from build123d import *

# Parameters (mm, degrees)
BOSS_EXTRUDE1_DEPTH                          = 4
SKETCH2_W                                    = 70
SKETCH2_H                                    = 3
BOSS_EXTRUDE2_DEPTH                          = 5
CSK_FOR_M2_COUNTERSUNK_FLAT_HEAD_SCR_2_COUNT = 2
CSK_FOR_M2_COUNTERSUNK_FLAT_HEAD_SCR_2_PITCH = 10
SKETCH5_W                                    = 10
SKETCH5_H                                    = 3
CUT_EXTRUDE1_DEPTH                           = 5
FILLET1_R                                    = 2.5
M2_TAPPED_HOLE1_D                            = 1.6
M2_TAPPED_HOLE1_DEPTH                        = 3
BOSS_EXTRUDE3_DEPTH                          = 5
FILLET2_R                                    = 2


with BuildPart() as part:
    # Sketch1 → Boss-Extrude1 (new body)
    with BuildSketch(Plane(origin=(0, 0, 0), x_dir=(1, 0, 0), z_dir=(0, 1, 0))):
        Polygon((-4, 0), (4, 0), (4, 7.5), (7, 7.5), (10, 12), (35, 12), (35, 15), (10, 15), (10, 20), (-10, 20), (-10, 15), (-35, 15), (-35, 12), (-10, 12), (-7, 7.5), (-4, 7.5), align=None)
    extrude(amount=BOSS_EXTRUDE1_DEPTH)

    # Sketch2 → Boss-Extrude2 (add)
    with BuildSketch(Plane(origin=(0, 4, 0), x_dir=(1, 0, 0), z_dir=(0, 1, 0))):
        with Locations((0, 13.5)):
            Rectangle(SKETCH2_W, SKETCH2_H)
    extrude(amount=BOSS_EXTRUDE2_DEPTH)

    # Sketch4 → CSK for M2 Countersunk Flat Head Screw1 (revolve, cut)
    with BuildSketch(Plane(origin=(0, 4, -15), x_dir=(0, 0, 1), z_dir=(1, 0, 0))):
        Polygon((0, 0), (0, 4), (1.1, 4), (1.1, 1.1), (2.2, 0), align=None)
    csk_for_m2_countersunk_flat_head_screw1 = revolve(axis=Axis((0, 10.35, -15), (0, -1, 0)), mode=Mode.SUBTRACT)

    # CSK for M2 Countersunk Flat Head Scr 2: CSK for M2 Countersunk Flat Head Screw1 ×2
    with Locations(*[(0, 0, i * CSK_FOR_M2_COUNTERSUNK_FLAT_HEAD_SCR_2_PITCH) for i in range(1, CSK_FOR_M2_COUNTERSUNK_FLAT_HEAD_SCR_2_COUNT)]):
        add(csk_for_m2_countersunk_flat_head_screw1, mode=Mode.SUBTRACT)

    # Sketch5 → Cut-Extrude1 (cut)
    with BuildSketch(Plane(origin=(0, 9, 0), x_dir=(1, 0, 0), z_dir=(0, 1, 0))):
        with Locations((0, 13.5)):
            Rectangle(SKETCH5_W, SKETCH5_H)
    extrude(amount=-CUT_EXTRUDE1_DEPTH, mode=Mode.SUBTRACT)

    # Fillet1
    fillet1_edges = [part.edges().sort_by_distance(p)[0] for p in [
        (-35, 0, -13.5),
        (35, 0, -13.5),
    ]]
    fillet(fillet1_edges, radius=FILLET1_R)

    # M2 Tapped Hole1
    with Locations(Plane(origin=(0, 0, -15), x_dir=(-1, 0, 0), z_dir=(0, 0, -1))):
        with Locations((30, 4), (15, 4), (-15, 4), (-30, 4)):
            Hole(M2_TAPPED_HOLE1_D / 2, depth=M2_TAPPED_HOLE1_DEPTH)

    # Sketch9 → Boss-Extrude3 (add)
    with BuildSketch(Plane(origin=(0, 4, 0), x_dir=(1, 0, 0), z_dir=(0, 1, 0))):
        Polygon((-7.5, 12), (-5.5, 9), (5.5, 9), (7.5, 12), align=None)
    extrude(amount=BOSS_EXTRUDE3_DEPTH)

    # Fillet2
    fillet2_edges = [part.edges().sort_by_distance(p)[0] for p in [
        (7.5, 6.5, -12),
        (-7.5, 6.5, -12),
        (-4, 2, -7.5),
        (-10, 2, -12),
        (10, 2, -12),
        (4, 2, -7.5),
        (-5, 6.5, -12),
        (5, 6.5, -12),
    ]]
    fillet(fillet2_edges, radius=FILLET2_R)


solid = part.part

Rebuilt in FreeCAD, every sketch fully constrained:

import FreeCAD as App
import Part
import Sketcher
Q = App.Units.Quantity


def edges_at(feature, points):
    """Names of the edges that pass closest to the given points."""
    edges = feature.Shape.Edges
    near = lambda p: min(range(len(edges)), key=lambda i: edges[i].distToShape(Part.Vertex(*p))[0])
    return sorted({f"Edge{near(p) + 1}" for p in points})


def add_polygon(sketch, points):
    """Adds a closed chain of lines whose ends are joined by coincident constraints."""
    first, n = sketch.GeometryCount, len(points)
    for a, b in zip(points, points[1:] + points[:1]):
        sketch.addGeometry(Part.LineSegment(App.Vector(*a, 0), App.Vector(*b, 0)), False)
    for i in range(n):
        sketch.addConstraint(Sketcher.Constraint("Coincident", first + i, 2, first + (i + 1) % n, 1))

doc = App.newDocument("Part")
params = doc.addObject("Spreadsheet::Sheet", "Params")
for row, (alias, value) in enumerate([
    ("sketch1_width", "8 mm"),
    ("sketch1_width2", "3 mm"),
    ("sketch1_width3", "25 mm"),
    ("sketch1_width4", "20 mm"),
    ("sketch1_height", "5 mm"),
    ("pad1_length", "4 mm"),
    ("sketch2_width", "70 mm"),
    ("sketch2_height", "3 mm"),
    ("pad2_length", "5 mm"),
    ("sketch3_width", "4 mm"),
    ("sketch3_width2", "2.9 mm"),
    ("sketch3_height", "2.2 mm"),
    ("groove_angle", "360 deg"),
    ("linearpattern_pitch", "10 mm"),
    ("sketch4_width", "10 mm"),
    ("sketch4_height", "3 mm"),
    ("pocket1_length", "5 mm"),
    ("fillet_radius", "2.5 mm"),
    ("sketch5_diameter", "1.6 mm"),
    ("hole_diameter", "1.6 mm"),
    ("hole_depth", "3 mm"),
    ("sketch6_width", "11 mm"),
    ("sketch6_width2", "15 mm"),
    ("pad3_length", "5 mm"),
    ("fillet2_radius", "2 mm"),
], start=1):
    params.set(f"A{row}", alias)
    params.set(f"B{row}", "=" + value)
    params.setAlias(f"B{row}", alias)

body = doc.addObject("PartDesign::Body", "Body")

# Sketch on XZ plane
sketch1 = body.newObject("Sketcher::SketchObject", "Sketch")
sketch1.AttachmentSupport = (doc.getObject("XZ_Plane"), [""])
sketch1.MapMode = "FlatFace"
add_polygon(sketch1, [(-4, 0), (4, 0), (4, -7.5), (7, -7.5), (10, -12), (35, -12), (35, -15), (10, -15), (10, -20), (-10, -20), (-10, -15), (-35, -15), (-35, -12), (-10, -12), (-7, -7.5), (-4, -7.5)])  # lines 0-15
sketch1.addConstraint(Sketcher.Constraint("Horizontal", 0))
sketch1.addConstraint(Sketcher.Constraint("Vertical", 1))
sketch1.addConstraint(Sketcher.Constraint("Horizontal", 2))
sketch1.addConstraint(Sketcher.Constraint("Horizontal", 4))
sketch1.addConstraint(Sketcher.Constraint("Vertical", 5))
sketch1.addConstraint(Sketcher.Constraint("Horizontal", 6))
sketch1.addConstraint(Sketcher.Constraint("Vertical", 7))
sketch1.addConstraint(Sketcher.Constraint("Horizontal", 8))
sketch1.addConstraint(Sketcher.Constraint("Vertical", 9))
sketch1.addConstraint(Sketcher.Constraint("Horizontal", 10))
sketch1.addConstraint(Sketcher.Constraint("Vertical", 11))
sketch1.addConstraint(Sketcher.Constraint("Horizontal", 12))
sketch1.addConstraint(Sketcher.Constraint("Horizontal", 14))
sketch1.addConstraint(Sketcher.Constraint("Vertical", 15))
sketch1.addConstraint(Sketcher.Constraint("Symmetric", 0, 2, 15, 2, -1, 1))
sketch1.addConstraint(Sketcher.Constraint("Symmetric", 6, 2, 9, 2, -2))
sketch1.addConstraint(Sketcher.Constraint("Symmetric", 4, 2, 11, 2, -2))
sketch1.addConstraint(Sketcher.Constraint("Symmetric", 2, 2, 13, 2, -2))
sketch1.addConstraint(Sketcher.Constraint("Vertical", 3, 2, 6, 2))
sketch1.addConstraint(Sketcher.Constraint("Vertical", 9, 2, 12, 2))
sketch1.addConstraint(Sketcher.Constraint("Equal", 14, 5))
sketch1.addConstraint(Sketcher.Constraint("DistanceX", 0, 1, 0, 2, 8.0))
sketch1.addConstraint(Sketcher.Constraint("DistanceX", 2, 1, 2, 2, 3.0))
sketch1.addConstraint(Sketcher.Constraint("DistanceX", 4, 1, 4, 2, 25.0))
sketch1.addConstraint(Sketcher.Constraint("DistanceX", 8, 2, 8, 1, 20.0))
sketch1.addConstraint(Sketcher.Constraint("DistanceY", 7, 2, 7, 1, 5.0))
sketch1.addConstraint(Sketcher.Constraint("DistanceY", 1, 2, 1, 1, 7.5))
sketch1.addConstraint(Sketcher.Constraint("DistanceY", 3, 2, -1, 1, 12.0))
sketch1.setExpression("Constraints[37]", "Params.sketch1_width")
sketch1.setExpression("Constraints[38]", "Params.sketch1_width2")
sketch1.setExpression("Constraints[39]", "Params.sketch1_width3")
sketch1.setExpression("Constraints[40]", "Params.sketch1_width4")
sketch1.setExpression("Constraints[41]", "Params.sketch1_height")
pad1 = body.newObject("PartDesign::Pad", "Pad")
pad1.Profile = sketch1
pad1.setExpression("Length", "Params.pad1_length")
pad1.Reversed = True

# Sketch on XZ plane
sketch2 = body.newObject("Sketcher::SketchObject", "Sketch001")
sketch2.AttachmentSupport = (doc.getObject("XZ_Plane"), [""])
sketch2.MapMode = "FlatFace"
sketch2.AttachmentOffset = App.Placement(App.Vector(0, 0, -4), App.Rotation())
add_polygon(sketch2, [(-35, -15), (-35, -12), (35, -12), (35, -15)])  # lines 0-3
sketch2.addConstraint(Sketcher.Constraint("Vertical", 0))
sketch2.addConstraint(Sketcher.Constraint("Horizontal", 1))
sketch2.addConstraint(Sketcher.Constraint("Vertical", 2))
sketch2.addConstraint(Sketcher.Constraint("Horizontal", 3))
sketch2.addConstraint(Sketcher.Constraint("DistanceX", 1, 1, 1, 2, 70.0))
sketch2.addConstraint(Sketcher.Constraint("DistanceY", 0, 1, 0, 2, 3.0))
sketch2.addConstraint(Sketcher.Constraint("DistanceX", 0, 2, -1, 1, 35.0))
sketch2.addConstraint(Sketcher.Constraint("DistanceY", 0, 2, -1, 1, 12.0))
sketch2.setExpression("Constraints[8]", "Params.sketch2_width")
sketch2.setExpression("Constraints[9]", "Params.sketch2_height")
pad2 = body.newObject("PartDesign::Pad", "Pad001")
pad2.Profile = sketch2
pad2.setExpression("Length", "Params.pad2_length")
pad2.Reversed = True

# Sketch on YZ plane
sketch3 = body.newObject("Sketcher::SketchObject", "Sketch002")
sketch3.AttachmentSupport = (doc.getObject("YZ_Plane"), [""])
sketch3.MapMode = "FlatFace"
add_polygon(sketch3, [(0, -15), (4, -15), (4, -12.8), (2.9, -13.9), (0, -13.9)])  # lines 0-4
sketch3.addGeometry(Part.LineSegment(App.Vector(4, -15, 0), App.Vector(0, -15, 0)), True)  # axis
sketch3.addConstraint(Sketcher.Constraint("Horizontal", 0))
sketch3.addConstraint(Sketcher.Constraint("Vertical", 1))
sketch3.addConstraint(Sketcher.Constraint("Horizontal", 3))
sketch3.addConstraint(Sketcher.Constraint("Vertical", 4))
sketch3.addConstraint(Sketcher.Constraint("Horizontal", 5))
sketch3.addConstraint(Sketcher.Constraint("Coincident", 5, 1, 0, 2))
sketch3.addConstraint(Sketcher.Constraint("PointOnObject", 3, 2, -2))
sketch3.addConstraint(Sketcher.Constraint("PointOnObject", 5, 2, -2))
sketch3.addConstraint(Sketcher.Constraint("DistanceX", 0, 1, 0, 2, 4.0))
sketch3.addConstraint(Sketcher.Constraint("Angle", 2, Q("-135 deg")))
sketch3.addConstraint(Sketcher.Constraint("DistanceX", 3, 2, 3, 1, 2.9))
sketch3.addConstraint(Sketcher.Constraint("DistanceY", 1, 1, 1, 2, 2.2))
sketch3.addConstraint(Sketcher.Constraint("DistanceY", 0, 2, -1, 1, 15.0))
sketch3.setExpression("Constraints[13]", "Params.sketch3_width")
sketch3.setExpression("Constraints[15]", "Params.sketch3_width2")
sketch3.setExpression("Constraints[16]", "Params.sketch3_height")
groove = body.newObject("PartDesign::Groove", "Groove")
groove.Profile = sketch3
groove.ReferenceAxis = (sketch3, ["Axis0"])
groove.setExpression("Angle", "Params.groove_angle")
doc.recompute()

linearpattern = body.newObject("PartDesign::LinearPattern", "LinearPattern")
linearpattern.Originals = [groove]
linearpattern.Direction = (doc.getObject("Z_Axis"), [""])
linearpattern.Mode = "offset"
linearpattern.setExpression("Offset", "Params.linearpattern_pitch")
linearpattern.Occurrences = 2
body.Tip = linearpattern

# Sketch on XZ plane
sketch4 = body.newObject("Sketcher::SketchObject", "Sketch003")
sketch4.AttachmentSupport = (doc.getObject("XZ_Plane"), [""])
sketch4.MapMode = "FlatFace"
sketch4.AttachmentOffset = App.Placement(App.Vector(0, 0, -9), App.Rotation())
add_polygon(sketch4, [(-5, -15), (-5, -12), (5, -12), (5, -15)])  # lines 0-3
sketch4.addConstraint(Sketcher.Constraint("Vertical", 0))
sketch4.addConstraint(Sketcher.Constraint("Horizontal", 1))
sketch4.addConstraint(Sketcher.Constraint("Vertical", 2))
sketch4.addConstraint(Sketcher.Constraint("Horizontal", 3))
sketch4.addConstraint(Sketcher.Constraint("DistanceX", 1, 1, 1, 2, 10.0))
sketch4.addConstraint(Sketcher.Constraint("DistanceY", 0, 1, 0, 2, 3.0))
sketch4.addConstraint(Sketcher.Constraint("DistanceX", 0, 2, -1, 1, 5.0))
sketch4.addConstraint(Sketcher.Constraint("DistanceY", 0, 2, -1, 1, 12.0))
sketch4.setExpression("Constraints[8]", "Params.sketch4_width")
sketch4.setExpression("Constraints[9]", "Params.sketch4_height")
pocket1 = body.newObject("PartDesign::Pocket", "Pocket")
pocket1.Profile = sketch4
pocket1.setExpression("Length", "Params.pocket1_length")
pocket1.Reversed = True
doc.recompute()

fillet = body.newObject("PartDesign::Fillet", "Fillet")
fillet.Base = (pocket1, edges_at(pocket1, [(-35, 0, -13.5), (35, 0, -13.5)]))
fillet.setExpression("Radius", "Params.fillet_radius")

# Sketch on XY plane
sketch5 = body.newObject("Sketcher::SketchObject", "Sketch004")
sketch5.AttachmentSupport = (doc.getObject("XY_Plane"), [""])
sketch5.MapMode = "FlatFace"
sketch5.AttachmentOffset = App.Placement(App.Vector(0, 0, -15), App.Rotation())
sketch5.addGeometry(Part.Circle(App.Vector(-30, 4, 0), App.Vector(0, 0, 1), 0.8), False)
sketch5.addGeometry(Part.Circle(App.Vector(-15, 4, 0), App.Vector(0, 0, 1), 0.8), False)
sketch5.addGeometry(Part.Circle(App.Vector(15, 4, 0), App.Vector(0, 0, 1), 0.8), False)
sketch5.addGeometry(Part.Circle(App.Vector(30, 4, 0), App.Vector(0, 0, 1), 0.8), False)
sketch5.addConstraint(Sketcher.Constraint("Equal", 0, 1))
sketch5.addConstraint(Sketcher.Constraint("Equal", 1, 2))
sketch5.addConstraint(Sketcher.Constraint("Equal", 2, 3))
sketch5.addConstraint(Sketcher.Constraint("Symmetric", 1, 3, 2, 3, -2))
sketch5.addConstraint(Sketcher.Constraint("Symmetric", 0, 3, 3, 3, -2))
sketch5.addConstraint(Sketcher.Constraint("Horizontal", 0, 3, 1, 3))
sketch5.addConstraint(Sketcher.Constraint("Diameter", 0, 1.6))
sketch5.addConstraint(Sketcher.Constraint("DistanceX", 0, 3, -1, 1, 30.0))
sketch5.addConstraint(Sketcher.Constraint("DistanceY", -1, 1, 0, 3, 4.0))
sketch5.addConstraint(Sketcher.Constraint("DistanceX", 1, 3, -1, 1, 15.0))
sketch5.setExpression("Constraints[6]", "Params.sketch5_diameter")
doc.recompute()
hole = body.newObject("PartDesign::Hole", "Hole")
hole.Profile = sketch5
hole.ThreadType = "None"
hole.setExpression("Diameter", "Params.hole_diameter")
hole.DepthType = "Dimension"
hole.setExpression("Depth", "Params.hole_depth")
hole.DrillPoint = "Flat"
hole.Reversed = True

# Sketch on XZ plane
sketch6 = body.newObject("Sketcher::SketchObject", "Sketch005")
sketch6.AttachmentSupport = (doc.getObject("XZ_Plane"), [""])
sketch6.MapMode = "FlatFace"
sketch6.AttachmentOffset = App.Placement(App.Vector(0, 0, -4), App.Rotation())
add_polygon(sketch6, [(-7.5, -12), (-5.5, -9), (5.5, -9), (7.5, -12)])  # lines 0-3
sketch6.addConstraint(Sketcher.Constraint("Horizontal", 1))
sketch6.addConstraint(Sketcher.Constraint("Horizontal", 3))
sketch6.addConstraint(Sketcher.Constraint("Equal", 0, 2))
sketch6.addConstraint(Sketcher.Constraint("DistanceX", 1, 1, 1, 2, 11.0))
sketch6.addConstraint(Sketcher.Constraint("DistanceX", 3, 2, 3, 1, 15.0))
sketch6.addConstraint(Sketcher.Constraint("DistanceY", 0, 2, -1, 1, 9.0))
sketch6.addConstraint(Sketcher.Constraint("DistanceY", 2, 2, -1, 1, 12.0))
sketch6.addConstraint(Sketcher.Constraint("DistanceX", 0, 2, -1, 1, 5.5))
sketch6.setExpression("Constraints[7]", "Params.sketch6_width")
sketch6.setExpression("Constraints[8]", "Params.sketch6_width2")
pad3 = body.newObject("PartDesign::Pad", "Pad002")
pad3.Profile = sketch6
pad3.setExpression("Length", "Params.pad3_length")
pad3.Reversed = True
doc.recompute()

fillet2 = body.newObject("PartDesign::Fillet", "Fillet001")
fillet2.Base = (pad3, edges_at(pad3, [
    (7.5, 6.5, -12),
    (-7.5, 6.5, -12),
    (-4, 2, -7.5),
    (-10, 2, -12),
    (10, 2, -12),
    (4, 2, -7.5),
    (-5, 6.5, -12),
    (5, 6.5, -12),
]))
fillet2.setExpression("Radius", "Params.fillet2_radius")

doc.recompute()
